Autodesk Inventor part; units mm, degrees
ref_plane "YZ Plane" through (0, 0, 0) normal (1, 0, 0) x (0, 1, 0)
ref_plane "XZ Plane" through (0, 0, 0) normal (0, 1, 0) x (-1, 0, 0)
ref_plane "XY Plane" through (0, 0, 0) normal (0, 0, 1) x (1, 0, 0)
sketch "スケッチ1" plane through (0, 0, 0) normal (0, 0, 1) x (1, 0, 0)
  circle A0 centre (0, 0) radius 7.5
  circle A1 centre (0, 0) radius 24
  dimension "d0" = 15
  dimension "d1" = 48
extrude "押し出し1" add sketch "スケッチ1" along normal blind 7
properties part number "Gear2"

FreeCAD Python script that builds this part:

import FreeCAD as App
import Part
import Sketcher

doc = App.newDocument("Part")
body = doc.addObject("PartDesign::Body", "Body")

# Sketch on XY plane
sketch1 = doc.addObject("Sketcher::SketchObject", "Sketch")
body.addObject(sketch1)
sketch1.AttachmentSupport = (doc.XY_Plane, [""])
sketch1.MapMode = "FlatFace"
sketch1.addGeometry(Part.Circle(App.Vector(0, 0, 0), App.Vector(0, 0, 1), 24), False)
sketch1.addGeometry(Part.Circle(App.Vector(0, 0, 0), App.Vector(0, 0, 1), 8), False)
sketch1.addConstraint(Sketcher.Constraint("Coincident", 0, 3, -1, 1))
sketch1.addConstraint(Sketcher.Constraint("Coincident", 1, 3, -1, 1))
sketch1.addConstraint(Sketcher.Constraint("Diameter", 0, 48.0))
sketch1.addConstraint(Sketcher.Constraint("Diameter", 1, 15.0))
pad1 = doc.addObject("PartDesign::Pad", "Pad")
body.addObject(pad1)
pad1.Profile = sketch1
pad1.Length = 7

doc.recompute()
